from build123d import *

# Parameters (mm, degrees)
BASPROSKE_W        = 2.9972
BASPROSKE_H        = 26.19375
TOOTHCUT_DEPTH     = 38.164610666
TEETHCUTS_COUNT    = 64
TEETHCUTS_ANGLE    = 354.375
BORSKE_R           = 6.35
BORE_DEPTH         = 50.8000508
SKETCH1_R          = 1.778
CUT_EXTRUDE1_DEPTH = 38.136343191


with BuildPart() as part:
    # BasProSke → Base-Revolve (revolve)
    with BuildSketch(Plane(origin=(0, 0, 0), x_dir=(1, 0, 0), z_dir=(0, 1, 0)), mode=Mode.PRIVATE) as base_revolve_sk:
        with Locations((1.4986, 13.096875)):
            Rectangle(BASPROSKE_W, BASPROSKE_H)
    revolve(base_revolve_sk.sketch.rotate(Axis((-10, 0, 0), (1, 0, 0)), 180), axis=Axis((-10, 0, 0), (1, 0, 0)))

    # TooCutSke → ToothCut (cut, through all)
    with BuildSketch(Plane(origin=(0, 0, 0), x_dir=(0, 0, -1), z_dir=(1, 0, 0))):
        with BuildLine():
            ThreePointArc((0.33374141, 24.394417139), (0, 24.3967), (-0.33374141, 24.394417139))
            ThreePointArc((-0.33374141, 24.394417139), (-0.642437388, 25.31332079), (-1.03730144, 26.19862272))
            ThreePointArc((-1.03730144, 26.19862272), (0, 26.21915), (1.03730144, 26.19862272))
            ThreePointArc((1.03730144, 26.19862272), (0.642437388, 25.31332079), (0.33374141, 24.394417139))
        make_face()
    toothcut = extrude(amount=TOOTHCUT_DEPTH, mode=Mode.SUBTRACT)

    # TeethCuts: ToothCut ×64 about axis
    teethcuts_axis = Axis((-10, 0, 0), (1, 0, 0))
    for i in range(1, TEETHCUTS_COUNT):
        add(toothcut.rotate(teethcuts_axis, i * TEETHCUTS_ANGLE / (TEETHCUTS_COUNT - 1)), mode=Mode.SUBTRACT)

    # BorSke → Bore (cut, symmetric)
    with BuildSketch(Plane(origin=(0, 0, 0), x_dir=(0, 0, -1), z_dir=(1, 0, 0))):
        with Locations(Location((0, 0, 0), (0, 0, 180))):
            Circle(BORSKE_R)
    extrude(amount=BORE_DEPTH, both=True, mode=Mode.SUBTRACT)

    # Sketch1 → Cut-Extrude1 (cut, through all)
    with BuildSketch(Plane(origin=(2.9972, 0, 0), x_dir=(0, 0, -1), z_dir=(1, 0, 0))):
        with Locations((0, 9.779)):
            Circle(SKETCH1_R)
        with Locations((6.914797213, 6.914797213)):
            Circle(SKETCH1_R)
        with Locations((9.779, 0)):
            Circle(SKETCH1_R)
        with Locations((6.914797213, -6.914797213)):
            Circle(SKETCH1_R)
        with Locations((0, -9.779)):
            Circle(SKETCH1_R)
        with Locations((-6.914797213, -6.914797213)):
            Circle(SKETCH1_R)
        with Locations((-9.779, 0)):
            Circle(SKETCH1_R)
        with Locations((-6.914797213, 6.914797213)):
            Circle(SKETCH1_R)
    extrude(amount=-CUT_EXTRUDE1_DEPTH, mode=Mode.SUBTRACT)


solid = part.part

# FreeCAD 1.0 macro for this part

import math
import FreeCAD as App
import Part
import Sketcher

V = App.Vector
Q = App.Units.Quantity

doc = App.newDocument("Part")
params = doc.addObject("Spreadsheet::Sheet", "Params")
for row, (alias, value) in enumerate([
    ("sketch1_width", "0.118 in"),
    ("sketch1_height", "1.03125 in"),
    ("revolution_angle", "360 deg"),
    ("sketch2_radius", "0.4 in"),
    ("sketch3_diameter", "0.5 in"),
    ("pocket2_length", "101.600102 mm"),
    ("sketch4_diameter", "0.14 in"),
], start=1):
    params.set(f"A{row}", alias)
    params.set(f"B{row}", "=" + value)
    params.setAlias(f"B{row}", alias)

body = doc.addObject("PartDesign::Body", "Body")

# Sketch on XZ plane
sketch1 = doc.addObject("Sketcher::SketchObject", "Sketch")
body.addObject(sketch1)
sketch1.AttachmentSupport = (doc.XZ_Plane, [""])
sketch1.MapMode = "FlatFace"
sketch1.addGeometry([
    Part.LineSegment(V(0, -26.2, 0), V(0, 0, 0)),
    Part.LineSegment(V(0, 0, 0), V(3, 0, 0)),
    Part.LineSegment(V(3, 0, 0), V(3, -26.2, 0)),
    Part.LineSegment(V(3, -26.2, 0), V(0, -26.2, 0)),
], False)
sketch1.addConstraint([
    Sketcher.Constraint("Coincident", 0, 2, 1, 1),
    Sketcher.Constraint("Coincident", 1, 2, 2, 1),
    Sketcher.Constraint("Coincident", 2, 2, 3, 1),
    Sketcher.Constraint("Coincident", 3, 2, 0, 1),
    Sketcher.Constraint("Vertical", 0),
    Sketcher.Constraint("Horizontal", 1),
    Sketcher.Constraint("Vertical", 2),
    Sketcher.Constraint("Horizontal", 3),
    Sketcher.Constraint("Coincident", 0, 2, -1, 1),
    Sketcher.Constraint("DistanceX", 1, 1, 1, 2, Q("0.118 in")),
    Sketcher.Constraint("DistanceY", 0, 1, 0, 2, Q("1.03125 in")),
])
sketch1.setExpression("Constraints[9]", "Params.sketch1_width")
sketch1.setExpression("Constraints[10]", "Params.sketch1_height")
revolution = doc.addObject("PartDesign::Revolution", "Revolution")
body.addObject(revolution)
revolution.Profile = sketch1
revolution.ReferenceAxis = (sketch1, ["H_Axis"])
revolution.setExpression("Angle", "Params.revolution_angle")

# Sketch on YZ plane
sketch2 = doc.addObject("Sketcher::SketchObject", "Sketch001")
body.addObject(sketch2)
sketch2.AttachmentSupport = (doc.YZ_Plane, [""])
sketch2.MapMode = "FlatFace"
sketch2.addGeometry([
    Part.ArcOfCircle(Part.Circle(V(0, 0, 0), V(0, 0, 1), 24.4), math.radians(-0.78), math.radians(0.78)),
    Part.ArcOfCircle(Part.Circle(V(21.6, -10.1, 0), V(0, 0, 1), 10.2), math.radians(63.23), math.radians(74.17)),
    Part.ArcOfCircle(Part.Circle(V(0, 0, 0), V(0, 0, 1), 26.2), math.radians(-2.27), math.radians(2.27)),
    Part.ArcOfCircle(Part.Circle(V(21.6, 10.1, 0), V(0, 0, 1), 10.2), math.radians(-74.17), math.radians(-63.23)),
], False)
sketch2.addConstraint([
    Sketcher.Constraint("Coincident", 0, 1, 1, 2),
    Sketcher.Constraint("Coincident", 1, 1, 2, 1),
    Sketcher.Constraint("Coincident", 2, 2, 3, 2),
    Sketcher.Constraint("Coincident", 3, 1, 0, 2),
    Sketcher.Constraint("Coincident", 0, 3, -1, 1),
    Sketcher.Constraint("Coincident", 2, 3, -1, 1),
    Sketcher.Constraint("Equal", 1, 3),
    Sketcher.Constraint("Symmetric", 1, 3, 3, 3, -1),
    Sketcher.Constraint("Radius", 1, Q("0.4 in")),
    Sketcher.Constraint("Radius", 0, Q("0.9604999 in")),
    Sketcher.Constraint("Radius", 2, Q("26.21915 mm")),
    Sketcher.Constraint("DistanceY", 1, 1, -1, 1, Q("1.037301 mm")),
    Sketcher.Constraint("DistanceY", 1, 3, -1, 1, Q("10.10819 mm")),
])
sketch2.setExpression("Constraints[8]", "Params.sketch2_radius")
pocket1 = doc.addObject("PartDesign::Pocket", "Pocket")
body.addObject(pocket1)
pocket1.Profile = sketch2
pocket1.Type = "ThroughAll"
pocket1.Reversed = True
doc.recompute()

polarpattern = doc.addObject("PartDesign::PolarPattern", "PolarPattern")
body.addObject(polarpattern)
polarpattern.Originals = [pocket1]
polarpattern.Axis = (doc.X_Axis, [""])
polarpattern.Angle = 360
polarpattern.Occurrences = 64
body.Tip = polarpattern

# Sketch on YZ plane
sketch3 = doc.addObject("Sketcher::SketchObject", "Sketch002")
body.addObject(sketch3)
sketch3.AttachmentSupport = (doc.YZ_Plane, [""])
sketch3.MapMode = "FlatFace"
sketch3.addGeometry(Part.Circle(V(0, 0, 0), V(0, 0, 1), 6), False)
sketch3.addConstraint([
    Sketcher.Constraint("Coincident", 0, 3, -1, 1),
    Sketcher.Constraint("Diameter", 0, Q("0.5 in")),
])
sketch3.setExpression("Constraints[1]", "Params.sketch3_diameter")
pocket2 = doc.addObject("PartDesign::Pocket", "Pocket001")
body.addObject(pocket2)
pocket2.Profile = sketch3
pocket2.setExpression("Length", "Params.pocket2_length")
pocket2.Midplane = True

# Sketch on YZ plane
sketch4 = doc.addObject("Sketcher::SketchObject", "Sketch003")
body.addObject(sketch4)
sketch4.AttachmentSupport = (doc.YZ_Plane, [""])
sketch4.MapMode = "FlatFace"
sketch4.AttachmentOffset = App.Placement(V(0, 0, 0.118 * 25.4), App.Rotation())
sketch4.addGeometry([
    Part.Circle(V(9.8, 0, 0), V(0, 0, 1), 1.8),  # 0
    Part.Circle(V(6.9, -6.9, 0), V(0, 0, 1), 1.8),  # 1
    Part.Circle(V(0, -9.8, 0), V(0, 0, 1), 1.8),  # 2
    Part.Circle(V(-6.9, -6.9, 0), V(0, 0, 1), 1.8),  # 3
    Part.Circle(V(-9.8, 0, 0), V(0, 0, 1), 1.8),  # 4
    Part.Circle(V(-6.9, 6.9, 0), V(0, 0, 1), 1.8),  # 5
    Part.Circle(V(0, 9.8, 0), V(0, 0, 1), 1.8),  # 6
    Part.Circle(V(6.9, 6.9, 0), V(0, 0, 1), 1.8),  # 7
], False)
sketch4.addConstraint([
    Sketcher.Constraint("Equal", 0, 1),
    Sketcher.Constraint("Equal", 1, 2),
    Sketcher.Constraint("Equal", 2, 3),
    Sketcher.Constraint("Equal", 3, 4),
    Sketcher.Constraint("Equal", 4, 5),
    Sketcher.Constraint("Equal", 5, 6),
    Sketcher.Constraint("Equal", 6, 7),
    Sketcher.Constraint("Symmetric", 0, 3, 4, 3, -1, 1),
    Sketcher.Constraint("Symmetric", 1, 3, 5, 3, -1, 1),
    Sketcher.Constraint("Symmetric", 2, 3, 6, 3, -1, 1),
    Sketcher.Constraint("Symmetric", 3, 3, 7, 3, -1, 1),
    Sketcher.Constraint("Symmetric", 1, 3, 3, 3, -2),
    Sketcher.Constraint("PointOnObject", 0, 3, -1),
    Sketcher.Constraint("PointOnObject", 2, 3, -2),
    Sketcher.Constraint("Diameter", 0, Q("0.14 in")),
    Sketcher.Constraint("DistanceX", 4, 3, 0, 3, Q("0.77 in")),
    Sketcher.Constraint("DistanceY", 2, 3, -1, 1, Q("0.385 in")),
    Sketcher.Constraint("DistanceX", -1, 1, 1, 3, Q("6.914797 mm")),
    Sketcher.Constraint("DistanceY", 1, 3, -1, 1, Q("6.914797 mm")),
])
sketch4.setExpression("Constraints[14]", "Params.sketch4_diameter")
pocket3 = doc.addObject("PartDesign::Pocket", "Pocket002")
body.addObject(pocket3)
pocket3.Profile = sketch4
pocket3.Type = "ThroughAll"

doc.recompute()
